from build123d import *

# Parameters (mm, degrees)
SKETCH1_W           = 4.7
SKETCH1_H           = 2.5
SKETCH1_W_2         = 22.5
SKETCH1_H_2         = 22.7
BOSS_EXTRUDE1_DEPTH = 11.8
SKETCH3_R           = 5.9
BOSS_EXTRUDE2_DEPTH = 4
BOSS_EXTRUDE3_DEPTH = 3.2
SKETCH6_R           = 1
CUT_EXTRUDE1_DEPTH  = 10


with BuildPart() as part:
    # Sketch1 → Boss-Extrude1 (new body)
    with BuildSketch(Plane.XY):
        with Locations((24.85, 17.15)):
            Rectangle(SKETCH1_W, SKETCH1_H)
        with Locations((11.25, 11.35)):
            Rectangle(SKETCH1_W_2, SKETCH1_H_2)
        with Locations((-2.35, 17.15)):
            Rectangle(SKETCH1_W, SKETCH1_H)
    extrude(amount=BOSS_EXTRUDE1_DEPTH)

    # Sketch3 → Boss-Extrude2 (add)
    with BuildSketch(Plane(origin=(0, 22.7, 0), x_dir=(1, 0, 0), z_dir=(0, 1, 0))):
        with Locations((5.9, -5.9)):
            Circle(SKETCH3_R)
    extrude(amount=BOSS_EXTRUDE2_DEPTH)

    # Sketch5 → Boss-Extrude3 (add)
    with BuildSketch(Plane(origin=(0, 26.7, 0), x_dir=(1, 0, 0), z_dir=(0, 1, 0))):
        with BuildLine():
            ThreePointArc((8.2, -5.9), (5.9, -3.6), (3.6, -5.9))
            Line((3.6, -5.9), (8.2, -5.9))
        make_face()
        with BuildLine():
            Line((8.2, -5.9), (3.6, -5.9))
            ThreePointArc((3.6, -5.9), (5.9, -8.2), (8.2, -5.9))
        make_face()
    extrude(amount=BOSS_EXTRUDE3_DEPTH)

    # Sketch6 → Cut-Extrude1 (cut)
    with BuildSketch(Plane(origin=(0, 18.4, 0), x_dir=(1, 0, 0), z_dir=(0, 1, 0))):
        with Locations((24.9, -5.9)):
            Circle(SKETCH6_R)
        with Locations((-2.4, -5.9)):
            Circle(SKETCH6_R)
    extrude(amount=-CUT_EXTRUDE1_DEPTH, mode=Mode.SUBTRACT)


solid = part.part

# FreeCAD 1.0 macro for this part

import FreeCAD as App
import Part
import Sketcher

V = App.Vector
Q = App.Units.Quantity


def add_polygon(sketch, points):
    """Adds a closed chain of lines whose ends are joined by coincident constraints."""
    first, n = sketch.GeometryCount, len(points)
    for a, b in zip(points, points[1:] + points[:1]):
        sketch.addGeometry(Part.LineSegment(App.Vector(*a, 0), App.Vector(*b, 0)), False)
    for i in range(n):
        sketch.addConstraint(Sketcher.Constraint("Coincident", first + i, 2, first + (i + 1) % n, 1))

doc = App.newDocument("Part")
body = doc.addObject("PartDesign::Body", "Body")

sketch1 = body.newObject("Sketcher::SketchObject", "Sketch")
sketch1.AttachmentSupport = (doc.getObject("XY_Plane"), [""])
sketch1.MapMode = "FlatFace"
add_polygon(sketch1, [(22.5, 15.9), (27.2, 15.9), (27.2, 18.4), (22.5, 18.4), (22.5, 22.7), (0, 22.7), (0, 18.4), (-4.7, 18.4), (-4.7, 15.9), (0, 15.9), (0, 0), (22.5, 0)])
sketch1.addConstraint(Sketcher.Constraint("Horizontal", 0))
sketch1.addConstraint(Sketcher.Constraint("Vertical", 1))
sketch1.addConstraint(Sketcher.Constraint("Horizontal", 2))
sketch1.addConstraint(Sketcher.Constraint("Vertical", 3))
sketch1.addConstraint(Sketcher.Constraint("Horizontal", 4))
sketch1.addConstraint(Sketcher.Constraint("Vertical", 5))
sketch1.addConstraint(Sketcher.Constraint("Horizontal", 6))
sketch1.addConstraint(Sketcher.Constraint("Vertical", 7))
sketch1.addConstraint(Sketcher.Constraint("Horizontal", 8))
sketch1.addConstraint(Sketcher.Constraint("Vertical", 9))
sketch1.addConstraint(Sketcher.Constraint("Horizontal", 10))
sketch1.addConstraint(Sketcher.Constraint("Vertical", 11))
sketch1.addConstraint(Sketcher.Constraint("Coincident", 9, 2, -1, 1))
sketch1.addConstraint(Sketcher.Constraint("PointOnObject", 4, 2, -2))
sketch1.addConstraint(Sketcher.Constraint("Horizontal", 2, 2, 5, 2))
sketch1.addConstraint(Sketcher.Constraint("Horizontal", 0, 2, 7, 2))
sketch1.addConstraint(Sketcher.Constraint("Vertical", 3, 2, 10, 2))
sketch1.addConstraint(Sketcher.Constraint("Equal", 2, 6))
sketch1.addConstraint(Sketcher.Constraint("DistanceX", 0, 1, 0, 2, Q("4.7 mm")))
sketch1.addConstraint(Sketcher.Constraint("DistanceX", 4, 2, 4, 1, Q("22.5 mm")))
sketch1.addConstraint(Sketcher.Constraint("DistanceY", 1, 1, 1, 2, Q("2.5 mm")))
sketch1.addConstraint(Sketcher.Constraint("DistanceY", 3, 1, 3, 2, Q("4.3 mm")))
sketch1.addConstraint(Sketcher.Constraint("DistanceY", 9, 2, 9, 1, Q("15.9 mm")))
pad1 = body.newObject("PartDesign::Pad", "Pad")
pad1.Profile = sketch1
pad1.Length = 11.8

sketch2 = body.newObject("Sketcher::SketchObject", "Sketch001")
sketch2.AttachmentSupport = (doc.getObject("XZ_Plane"), [""])
sketch2.MapMode = "FlatFace"
sketch2.AttachmentOffset = App.Placement(V(0, 0, -22.7), App.Rotation())
sketch2.addGeometry(Part.Circle(V(6, 6, 0), V(0, 0, 1), 6), False)
sketch2.addConstraint(Sketcher.Constraint("Diameter", 0, Q("11.8 mm")))
sketch2.addConstraint(Sketcher.Constraint("DistanceX", -1, 1, 0, 3, Q("5.9 mm")))
sketch2.addConstraint(Sketcher.Constraint("DistanceY", -1, 1, 0, 3, Q("5.9 mm")))
pad2 = body.newObject("PartDesign::Pad", "Pad001")
pad2.Profile = sketch2
pad2.Length = 4
pad2.Reversed = True

sketch3 = body.newObject("Sketcher::SketchObject", "Sketch002")
sketch3.AttachmentSupport = (doc.getObject("XZ_Plane"), [""])
sketch3.MapMode = "FlatFace"
sketch3.AttachmentOffset = App.Placement(V(0, 0, -26.7), App.Rotation())
sketch3.addGeometry(Part.Circle(V(5.9, 5.9, 0), V(0, 0, 1), 2.3), False)
sketch3.addConstraint(Sketcher.Constraint("Diameter", 0, Q("4.6 mm")))
sketch3.addConstraint(Sketcher.Constraint("DistanceX", -1, 1, 0, 3, Q("5.9 mm")))
sketch3.addConstraint(Sketcher.Constraint("DistanceY", -1, 1, 0, 3, Q("5.9 mm")))
pad3 = body.newObject("PartDesign::Pad", "Pad002")
pad3.Profile = sketch3
pad3.Length = 3.2
pad3.Reversed = True

sketch4 = body.newObject("Sketcher::SketchObject", "Sketch003")
sketch4.AttachmentSupport = (doc.getObject("XZ_Plane"), [""])
sketch4.MapMode = "FlatFace"
sketch4.AttachmentOffset = App.Placement(V(0, 0, -18.4), App.Rotation())
sketch4.addGeometry(Part.Circle(V(24.9, 5.9, 0), V(0, 0, 1), 1), False)
sketch4.addGeometry(Part.Circle(V(-2.4, 5.9, 0), V(0, 0, 1), 1), False)
sketch4.addConstraint(Sketcher.Constraint("Equal", 0, 1))
sketch4.addConstraint(Sketcher.Constraint("Horizontal", 0, 3, 1, 3))
sketch4.addConstraint(Sketcher.Constraint("Diameter", 0, Q("2 mm")))
sketch4.addConstraint(Sketcher.Constraint("DistanceX", -1, 1, 0, 3, Q("24.9 mm")))
sketch4.addConstraint(Sketcher.Constraint("DistanceY", -1, 1, 0, 3, Q("5.9 mm")))
sketch4.addConstraint(Sketcher.Constraint("DistanceX", 1, 3, -1, 1, Q("2.4 mm")))
pocket1 = body.newObject("PartDesign::Pocket", "Pocket")
pocket1.Profile = sketch4
pocket1.Length = 10
pocket1.Reversed = True

doc.recompute()
